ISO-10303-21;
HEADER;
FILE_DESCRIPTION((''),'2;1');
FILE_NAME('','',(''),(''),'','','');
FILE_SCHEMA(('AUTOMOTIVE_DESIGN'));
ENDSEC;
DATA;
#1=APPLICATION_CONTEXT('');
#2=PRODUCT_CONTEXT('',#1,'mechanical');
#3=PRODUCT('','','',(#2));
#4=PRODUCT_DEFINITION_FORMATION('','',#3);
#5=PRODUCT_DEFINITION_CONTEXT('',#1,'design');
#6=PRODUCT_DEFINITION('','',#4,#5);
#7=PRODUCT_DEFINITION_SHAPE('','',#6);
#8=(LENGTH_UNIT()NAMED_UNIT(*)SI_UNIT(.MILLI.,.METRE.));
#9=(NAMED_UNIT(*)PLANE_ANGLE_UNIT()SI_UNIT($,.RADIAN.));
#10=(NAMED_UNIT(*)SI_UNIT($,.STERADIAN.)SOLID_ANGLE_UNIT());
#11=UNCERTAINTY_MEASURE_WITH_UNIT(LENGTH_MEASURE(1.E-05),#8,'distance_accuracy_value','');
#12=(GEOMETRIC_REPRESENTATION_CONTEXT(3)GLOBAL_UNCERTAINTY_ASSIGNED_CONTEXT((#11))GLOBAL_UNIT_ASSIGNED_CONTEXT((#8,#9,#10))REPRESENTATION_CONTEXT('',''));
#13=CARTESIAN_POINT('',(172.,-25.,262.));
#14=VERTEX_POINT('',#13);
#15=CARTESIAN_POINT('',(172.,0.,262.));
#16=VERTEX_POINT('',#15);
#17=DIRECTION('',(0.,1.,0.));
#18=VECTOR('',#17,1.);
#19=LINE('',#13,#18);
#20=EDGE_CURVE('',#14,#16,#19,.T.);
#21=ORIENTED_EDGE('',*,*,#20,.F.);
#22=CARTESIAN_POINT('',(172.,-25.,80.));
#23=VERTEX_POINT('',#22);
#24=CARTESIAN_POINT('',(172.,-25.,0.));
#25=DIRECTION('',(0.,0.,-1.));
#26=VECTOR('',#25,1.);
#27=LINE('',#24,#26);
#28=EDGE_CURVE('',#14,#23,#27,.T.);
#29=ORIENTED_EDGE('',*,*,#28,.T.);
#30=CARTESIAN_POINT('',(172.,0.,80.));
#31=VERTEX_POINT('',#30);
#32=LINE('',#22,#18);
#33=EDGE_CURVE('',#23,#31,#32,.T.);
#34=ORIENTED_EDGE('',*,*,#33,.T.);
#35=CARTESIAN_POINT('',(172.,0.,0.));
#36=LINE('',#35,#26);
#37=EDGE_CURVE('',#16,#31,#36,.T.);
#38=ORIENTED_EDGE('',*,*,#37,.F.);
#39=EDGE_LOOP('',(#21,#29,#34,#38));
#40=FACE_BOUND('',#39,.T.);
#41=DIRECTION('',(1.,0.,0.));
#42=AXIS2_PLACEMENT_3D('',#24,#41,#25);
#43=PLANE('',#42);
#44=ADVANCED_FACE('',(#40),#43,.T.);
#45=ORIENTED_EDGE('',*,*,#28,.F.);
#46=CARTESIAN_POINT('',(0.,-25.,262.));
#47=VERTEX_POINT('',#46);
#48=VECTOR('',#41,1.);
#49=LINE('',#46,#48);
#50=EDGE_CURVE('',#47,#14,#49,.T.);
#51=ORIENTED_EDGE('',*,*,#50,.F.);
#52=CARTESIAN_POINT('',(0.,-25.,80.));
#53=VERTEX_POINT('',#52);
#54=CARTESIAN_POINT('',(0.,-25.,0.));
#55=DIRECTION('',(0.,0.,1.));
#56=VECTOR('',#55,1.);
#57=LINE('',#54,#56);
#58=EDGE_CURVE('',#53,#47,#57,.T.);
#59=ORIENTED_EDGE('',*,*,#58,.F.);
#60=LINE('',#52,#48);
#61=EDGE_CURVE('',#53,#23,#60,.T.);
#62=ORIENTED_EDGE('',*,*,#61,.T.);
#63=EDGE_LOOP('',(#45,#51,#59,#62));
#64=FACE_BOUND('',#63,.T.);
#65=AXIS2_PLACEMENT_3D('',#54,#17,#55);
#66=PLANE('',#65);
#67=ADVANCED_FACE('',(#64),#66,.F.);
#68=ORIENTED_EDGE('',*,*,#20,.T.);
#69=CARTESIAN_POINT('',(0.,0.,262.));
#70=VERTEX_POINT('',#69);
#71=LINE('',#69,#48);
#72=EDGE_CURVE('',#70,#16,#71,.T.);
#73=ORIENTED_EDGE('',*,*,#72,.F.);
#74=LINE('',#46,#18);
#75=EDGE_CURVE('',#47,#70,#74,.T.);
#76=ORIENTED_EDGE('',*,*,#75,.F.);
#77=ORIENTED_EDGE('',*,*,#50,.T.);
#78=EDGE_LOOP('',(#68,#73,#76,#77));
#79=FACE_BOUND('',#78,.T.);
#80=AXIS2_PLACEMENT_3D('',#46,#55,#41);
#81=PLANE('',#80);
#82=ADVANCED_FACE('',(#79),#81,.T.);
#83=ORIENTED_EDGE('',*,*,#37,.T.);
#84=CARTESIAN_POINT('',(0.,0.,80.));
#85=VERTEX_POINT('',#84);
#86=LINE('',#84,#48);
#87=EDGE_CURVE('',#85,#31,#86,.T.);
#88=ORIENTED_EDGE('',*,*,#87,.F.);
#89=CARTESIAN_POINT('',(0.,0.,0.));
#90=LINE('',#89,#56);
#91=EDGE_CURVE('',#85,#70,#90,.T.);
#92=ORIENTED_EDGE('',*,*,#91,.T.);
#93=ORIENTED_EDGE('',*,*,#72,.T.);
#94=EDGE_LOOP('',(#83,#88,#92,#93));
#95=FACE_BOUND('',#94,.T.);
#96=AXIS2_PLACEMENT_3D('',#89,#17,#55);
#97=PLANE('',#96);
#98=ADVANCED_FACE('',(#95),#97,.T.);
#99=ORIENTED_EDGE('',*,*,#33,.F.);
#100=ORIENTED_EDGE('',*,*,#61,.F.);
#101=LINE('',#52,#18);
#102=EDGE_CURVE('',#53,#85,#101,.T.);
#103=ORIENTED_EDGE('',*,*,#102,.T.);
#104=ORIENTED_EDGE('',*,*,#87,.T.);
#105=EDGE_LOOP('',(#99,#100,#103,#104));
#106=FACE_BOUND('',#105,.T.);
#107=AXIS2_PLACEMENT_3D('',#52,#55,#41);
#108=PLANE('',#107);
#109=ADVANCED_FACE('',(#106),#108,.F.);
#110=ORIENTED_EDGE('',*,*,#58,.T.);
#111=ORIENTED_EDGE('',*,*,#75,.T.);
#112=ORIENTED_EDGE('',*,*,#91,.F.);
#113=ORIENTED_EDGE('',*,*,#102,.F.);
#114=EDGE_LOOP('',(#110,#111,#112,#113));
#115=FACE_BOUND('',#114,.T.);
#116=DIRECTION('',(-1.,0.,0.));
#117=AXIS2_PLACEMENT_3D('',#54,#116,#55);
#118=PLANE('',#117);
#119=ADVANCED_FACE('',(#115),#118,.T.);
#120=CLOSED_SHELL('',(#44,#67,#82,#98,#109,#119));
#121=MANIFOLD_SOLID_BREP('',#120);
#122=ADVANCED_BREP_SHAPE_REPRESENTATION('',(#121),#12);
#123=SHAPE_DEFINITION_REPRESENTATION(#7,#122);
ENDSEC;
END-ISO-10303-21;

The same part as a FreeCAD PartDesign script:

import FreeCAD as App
import Part
import Sketcher

V = App.Vector

doc = App.newDocument("Part")
body = doc.addObject("PartDesign::Body", "Body")

# Sketch on XZ plane
sketch1 = body.newObject("Sketcher::SketchObject", "Sketch")
sketch1.AttachmentSupport = (doc.getObject("XZ_Plane"), [""])
sketch1.MapMode = "FlatFace"
sketch1.addGeometry([
    Part.LineSegment(V(0, 80, 0), V(0, 262, 0)),
    Part.LineSegment(V(0, 262, 0), V(172, 262, 0)),
    Part.LineSegment(V(172, 262, 0), V(172, 80, 0)),
    Part.LineSegment(V(172, 80, 0), V(0, 80, 0)),
], False)
sketch1.addConstraint([
    Sketcher.Constraint("Coincident", 0, 2, 1, 1),
    Sketcher.Constraint("Coincident", 1, 2, 2, 1),
    Sketcher.Constraint("Coincident", 2, 2, 3, 1),
    Sketcher.Constraint("Coincident", 3, 2, 0, 1),
    Sketcher.Constraint("Vertical", 0),
    Sketcher.Constraint("Horizontal", 1),
    Sketcher.Constraint("Vertical", 2),
    Sketcher.Constraint("Horizontal", 3),
    Sketcher.Constraint("PointOnObject", 0, 2, -2),
    Sketcher.Constraint("DistanceX", 1, 1, 1, 2, 172.0),
    Sketcher.Constraint("DistanceY", 0, 1, 0, 2, 182.0),
    Sketcher.Constraint("DistanceY", -1, 1, 0, 2, 262.0),
])
pad1 = body.newObject("PartDesign::Pad", "Pad")
pad1.Profile = sketch1
pad1.Length = 25

doc.recompute()
